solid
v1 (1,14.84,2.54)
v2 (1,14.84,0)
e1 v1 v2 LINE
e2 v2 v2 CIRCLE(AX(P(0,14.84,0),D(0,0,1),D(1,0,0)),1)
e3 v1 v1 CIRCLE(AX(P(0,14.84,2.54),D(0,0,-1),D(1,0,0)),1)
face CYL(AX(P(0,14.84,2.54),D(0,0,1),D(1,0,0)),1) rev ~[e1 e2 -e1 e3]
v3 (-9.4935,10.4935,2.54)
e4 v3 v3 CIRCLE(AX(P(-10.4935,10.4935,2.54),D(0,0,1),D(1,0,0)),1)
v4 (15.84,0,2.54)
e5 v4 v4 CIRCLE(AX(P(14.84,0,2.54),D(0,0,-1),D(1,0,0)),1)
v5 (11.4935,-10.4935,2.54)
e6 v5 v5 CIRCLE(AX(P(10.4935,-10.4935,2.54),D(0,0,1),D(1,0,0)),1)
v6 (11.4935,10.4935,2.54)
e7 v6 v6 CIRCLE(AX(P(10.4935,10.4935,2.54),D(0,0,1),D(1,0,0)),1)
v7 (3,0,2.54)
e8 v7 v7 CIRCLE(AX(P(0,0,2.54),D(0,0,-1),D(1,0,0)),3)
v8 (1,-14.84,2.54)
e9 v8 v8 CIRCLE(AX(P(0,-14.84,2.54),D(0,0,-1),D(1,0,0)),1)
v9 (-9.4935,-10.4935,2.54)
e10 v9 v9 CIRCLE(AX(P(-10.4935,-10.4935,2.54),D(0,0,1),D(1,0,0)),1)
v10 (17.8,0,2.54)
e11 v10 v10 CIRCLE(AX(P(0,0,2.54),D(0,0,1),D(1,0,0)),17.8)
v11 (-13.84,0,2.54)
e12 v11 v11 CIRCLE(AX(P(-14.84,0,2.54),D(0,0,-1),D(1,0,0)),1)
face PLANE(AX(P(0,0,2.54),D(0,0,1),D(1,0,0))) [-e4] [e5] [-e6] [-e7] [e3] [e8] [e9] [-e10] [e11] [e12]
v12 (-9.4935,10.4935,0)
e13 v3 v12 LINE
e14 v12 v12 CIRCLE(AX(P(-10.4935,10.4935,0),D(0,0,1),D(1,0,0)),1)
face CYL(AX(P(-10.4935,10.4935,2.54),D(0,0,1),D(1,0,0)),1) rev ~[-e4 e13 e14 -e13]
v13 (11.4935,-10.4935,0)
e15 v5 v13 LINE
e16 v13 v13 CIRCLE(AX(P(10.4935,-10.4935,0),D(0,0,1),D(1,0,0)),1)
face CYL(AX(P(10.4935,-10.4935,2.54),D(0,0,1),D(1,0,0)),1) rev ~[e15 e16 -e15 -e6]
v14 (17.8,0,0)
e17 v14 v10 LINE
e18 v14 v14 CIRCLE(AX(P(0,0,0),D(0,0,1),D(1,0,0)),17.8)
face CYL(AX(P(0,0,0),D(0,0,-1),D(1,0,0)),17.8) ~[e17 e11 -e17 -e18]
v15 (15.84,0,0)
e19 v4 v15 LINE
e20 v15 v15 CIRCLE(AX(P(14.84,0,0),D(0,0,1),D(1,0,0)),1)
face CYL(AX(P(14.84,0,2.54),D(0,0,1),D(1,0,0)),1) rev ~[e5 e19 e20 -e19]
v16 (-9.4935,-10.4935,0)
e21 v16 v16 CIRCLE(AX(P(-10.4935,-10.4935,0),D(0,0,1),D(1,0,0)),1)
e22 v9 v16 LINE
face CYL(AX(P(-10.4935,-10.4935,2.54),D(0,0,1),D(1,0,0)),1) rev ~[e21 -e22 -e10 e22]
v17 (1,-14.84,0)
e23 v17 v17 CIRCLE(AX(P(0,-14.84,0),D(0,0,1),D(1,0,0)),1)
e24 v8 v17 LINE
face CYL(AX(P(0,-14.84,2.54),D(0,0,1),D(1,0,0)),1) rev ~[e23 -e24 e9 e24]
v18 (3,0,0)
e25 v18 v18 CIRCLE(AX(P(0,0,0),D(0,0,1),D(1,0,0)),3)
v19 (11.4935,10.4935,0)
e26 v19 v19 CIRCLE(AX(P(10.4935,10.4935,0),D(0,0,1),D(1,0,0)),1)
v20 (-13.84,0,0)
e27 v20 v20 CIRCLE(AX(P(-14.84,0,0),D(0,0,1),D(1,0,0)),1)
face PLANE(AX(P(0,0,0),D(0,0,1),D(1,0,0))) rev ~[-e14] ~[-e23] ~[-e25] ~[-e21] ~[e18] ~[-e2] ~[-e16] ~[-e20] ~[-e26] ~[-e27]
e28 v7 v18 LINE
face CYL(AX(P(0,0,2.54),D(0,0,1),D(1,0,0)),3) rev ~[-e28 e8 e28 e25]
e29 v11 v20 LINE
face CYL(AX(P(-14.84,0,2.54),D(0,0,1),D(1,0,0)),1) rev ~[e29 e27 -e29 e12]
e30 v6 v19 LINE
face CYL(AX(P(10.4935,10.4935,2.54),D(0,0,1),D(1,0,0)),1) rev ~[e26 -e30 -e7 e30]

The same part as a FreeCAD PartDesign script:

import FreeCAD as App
import Part
import Sketcher
from FreeCAD import Vector
Q = App.Units.Quantity

doc = App.newDocument("Part")
params = doc.addObject("Spreadsheet::Sheet", "Params")
for row, (alias, value) in enumerate([
    ("sketch1_diameter", "35.6 mm"),
    ("pad1_length", "2.54 mm"),
    ("sketch2_diameter", "2 mm"),
    ("sketch2_diameter2", "6 mm"),
    ("pocket1_length", "2.54 mm"),
], start=1):
    params.set(f"A{row}", alias)
    params.set(f"B{row}", "=" + value)
    params.setAlias(f"B{row}", alias)

body = doc.addObject("PartDesign::Body", "Body")

# Sketch on XY plane
sketch1 = body.newObject("Sketcher::SketchObject", "Sketch")
sketch1.AttachmentSupport = (doc.getObject("XY_Plane"), [""])
sketch1.MapMode = "FlatFace"
sketch1.addGeometry(Part.Circle(Vector(0, 0, 0), Vector(0, 0, 1), 18), False)
sketch1.addConstraint(Sketcher.Constraint("Coincident", 0, 3, -1, 1))
sketch1.addConstraint(Sketcher.Constraint("Diameter", 0, Q("35.6 mm")))
sketch1.setExpression("Constraints[1]", "Params.sketch1_diameter")
pad1 = body.newObject("PartDesign::Pad", "Pad")
pad1.Profile = sketch1
pad1.setExpression("Length", "Params.pad1_length")

# Sketch on XY plane
sketch2 = body.newObject("Sketcher::SketchObject", "Sketch001")
sketch2.AttachmentSupport = (doc.getObject("XY_Plane"), [""])
sketch2.MapMode = "FlatFace"
sketch2.AttachmentOffset = App.Placement(Vector(0, 0, 2.54), App.Rotation())
sketch2.addGeometry(Part.Circle(Vector(14.8, 0, 0), Vector(0, 0, 1), 1), False)
sketch2.addGeometry(Part.Circle(Vector(0, 14.8, 0), Vector(0, 0, 1), 1), False)
sketch2.addGeometry(Part.Circle(Vector(0, -14.8, 0), Vector(0, 0, 1), 1), False)
sketch2.addGeometry(Part.Circle(Vector(-14.8, 0, 0), Vector(0, 0, 1), 1), False)
sketch2.addGeometry(Part.Circle(Vector(0, 0, 0), Vector(0, 0, 1), 3), False)
sketch2.addGeometry(Part.Circle(Vector(-10.5, 10.5, 0), Vector(0, 0, 1), 1), False)
sketch2.addGeometry(Part.Circle(Vector(-10.5, -10.5, 0), Vector(0, 0, 1), 1), False)
sketch2.addGeometry(Part.Circle(Vector(10.5, -10.5, 0), Vector(0, 0, 1), 1), False)
sketch2.addGeometry(Part.Circle(Vector(10.5, 10.5, 0), Vector(0, 0, 1), 1), False)
sketch2.addConstraint(Sketcher.Constraint("Coincident", 4, 3, -1, 1))
sketch2.addConstraint(Sketcher.Constraint("Equal", 0, 1))
sketch2.addConstraint(Sketcher.Constraint("Equal", 1, 2))
sketch2.addConstraint(Sketcher.Constraint("Equal", 2, 3))
sketch2.addConstraint(Sketcher.Constraint("Equal", 3, 5))
sketch2.addConstraint(Sketcher.Constraint("Equal", 5, 6))
sketch2.addConstraint(Sketcher.Constraint("Equal", 6, 7))
sketch2.addConstraint(Sketcher.Constraint("Equal", 7, 8))
sketch2.addConstraint(Sketcher.Constraint("Symmetric", 1, 3, 2, 3, -1, 1))
sketch2.addConstraint(Sketcher.Constraint("Symmetric", 0, 3, 3, 3, -1, 1))
sketch2.addConstraint(Sketcher.Constraint("Symmetric", 5, 3, 7, 3, -1, 1))
sketch2.addConstraint(Sketcher.Constraint("Symmetric", 6, 3, 8, 3, -1, 1))
sketch2.addConstraint(Sketcher.Constraint("Symmetric", 6, 3, 7, 3, -2))
sketch2.addConstraint(Sketcher.Constraint("PointOnObject", 0, 3, -1))
sketch2.addConstraint(Sketcher.Constraint("PointOnObject", 1, 3, -2))
sketch2.addConstraint(Sketcher.Constraint("Diameter", 0, Q("2 mm")))
sketch2.addConstraint(Sketcher.Constraint("Diameter", 4, Q("6 mm")))
sketch2.addConstraint(Sketcher.Constraint("DistanceX", -1, 1, 0, 3, Q("14.84 mm")))
sketch2.addConstraint(Sketcher.Constraint("DistanceY", -1, 1, 1, 3, Q("14.84 mm")))
sketch2.addConstraint(Sketcher.Constraint("DistanceY", 6, 3, 5, 3, Q("20.987 mm")))
sketch2.addConstraint(Sketcher.Constraint("DistanceX", 6, 3, 7, 3, Q("20.987 mm")))
sketch2.setExpression("Constraints[15]", "Params.sketch2_diameter")
sketch2.setExpression("Constraints[16]", "Params.sketch2_diameter2")
pocket1 = body.newObject("PartDesign::Pocket", "Pocket")
pocket1.Profile = sketch2
pocket1.setExpression("Length", "Params.pocket1_length")

doc.recompute()
